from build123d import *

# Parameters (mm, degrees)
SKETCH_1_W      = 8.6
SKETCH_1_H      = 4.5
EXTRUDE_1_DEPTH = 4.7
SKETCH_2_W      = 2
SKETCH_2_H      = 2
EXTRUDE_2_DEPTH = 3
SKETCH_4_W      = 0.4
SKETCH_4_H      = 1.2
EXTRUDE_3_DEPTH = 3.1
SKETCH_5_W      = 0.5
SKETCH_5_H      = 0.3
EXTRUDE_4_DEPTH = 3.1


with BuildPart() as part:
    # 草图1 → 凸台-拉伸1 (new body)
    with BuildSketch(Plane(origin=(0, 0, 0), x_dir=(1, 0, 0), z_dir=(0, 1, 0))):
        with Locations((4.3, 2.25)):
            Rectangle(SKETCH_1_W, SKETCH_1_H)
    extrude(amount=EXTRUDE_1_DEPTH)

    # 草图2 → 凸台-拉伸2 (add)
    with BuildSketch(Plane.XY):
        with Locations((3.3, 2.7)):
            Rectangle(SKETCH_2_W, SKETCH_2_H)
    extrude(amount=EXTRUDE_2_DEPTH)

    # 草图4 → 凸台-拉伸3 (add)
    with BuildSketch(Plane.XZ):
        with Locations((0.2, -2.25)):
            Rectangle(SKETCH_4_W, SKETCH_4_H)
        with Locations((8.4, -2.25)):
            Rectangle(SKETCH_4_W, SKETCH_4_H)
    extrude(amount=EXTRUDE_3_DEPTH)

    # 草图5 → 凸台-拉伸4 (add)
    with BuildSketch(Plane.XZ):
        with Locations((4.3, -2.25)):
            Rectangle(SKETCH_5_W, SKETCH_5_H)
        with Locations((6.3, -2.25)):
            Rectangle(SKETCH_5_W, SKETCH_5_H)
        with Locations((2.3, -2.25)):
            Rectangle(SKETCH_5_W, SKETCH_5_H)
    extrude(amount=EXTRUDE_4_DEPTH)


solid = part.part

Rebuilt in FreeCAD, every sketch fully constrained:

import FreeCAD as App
import Part
import Sketcher
from FreeCAD import Vector

doc = App.newDocument("Part")
params = doc.addObject("Spreadsheet::Sheet", "Params")
for row, (alias, value) in enumerate([
    ("sketch1_width", "8.6 mm"),
    ("sketch1_height", "4.5 mm"),
    ("pad1_length", "4.7 mm"),
    ("sketch2_width", "2 mm"),
    ("pad2_length", "3 mm"),
    ("sketch3_width", "0.4 mm"),
    ("sketch3_height", "1.2 mm"),
    ("pad3_length", "3.1 mm"),
    ("sketch4_width", "0.5 mm"),
    ("sketch4_height", "0.3 mm"),
    ("pad4_length", "3.1 mm"),
], start=1):
    params.set(f"A{row}", alias)
    params.set(f"B{row}", "=" + value)
    params.setAlias(f"B{row}", alias)

body = doc.addObject("PartDesign::Body", "Body")

sketch1 = body.newObject("Sketcher::SketchObject", "Sketch")
sketch1.AttachmentSupport = (doc.getObject("XZ_Plane"), [""])
sketch1.MapMode = "FlatFace"
sketch1.addGeometry(Part.LineSegment(Vector(0, -4.5, 0), Vector(0, 0, 0)), False)
sketch1.addGeometry(Part.LineSegment(Vector(0, 0, 0), Vector(8.6, 0, 0)), False)
sketch1.addGeometry(Part.LineSegment(Vector(8.6, 0, 0), Vector(8.6, -4.5, 0)), False)
sketch1.addGeometry(Part.LineSegment(Vector(8.6, -4.5, 0), Vector(0, -4.5, 0)), False)
sketch1.addConstraint(Sketcher.Constraint("Coincident", 0, 2, 1, 1))
sketch1.addConstraint(Sketcher.Constraint("Coincident", 1, 2, 2, 1))
sketch1.addConstraint(Sketcher.Constraint("Coincident", 2, 2, 3, 1))
sketch1.addConstraint(Sketcher.Constraint("Coincident", 3, 2, 0, 1))
sketch1.addConstraint(Sketcher.Constraint("Vertical", 0))
sketch1.addConstraint(Sketcher.Constraint("Horizontal", 1))
sketch1.addConstraint(Sketcher.Constraint("Vertical", 2))
sketch1.addConstraint(Sketcher.Constraint("Horizontal", 3))
sketch1.addConstraint(Sketcher.Constraint("Coincident", 0, 2, -1, 1))
sketch1.addConstraint(Sketcher.Constraint("DistanceX", 1, 1, 1, 2, 8.6))
sketch1.addConstraint(Sketcher.Constraint("DistanceY", 0, 1, 0, 2, 4.5))
sketch1.setExpression("Constraints[9]", "Params.sketch1_width")
sketch1.setExpression("Constraints[10]", "Params.sketch1_height")
pad1 = body.newObject("PartDesign::Pad", "Pad")
pad1.Profile = sketch1
pad1.setExpression("Length", "Params.pad1_length")
pad1.Reversed = True

sketch2 = body.newObject("Sketcher::SketchObject", "Sketch001")
sketch2.AttachmentSupport = (doc.getObject("XY_Plane"), [""])
sketch2.MapMode = "FlatFace"
sketch2.addGeometry(Part.LineSegment(Vector(2.3, 3.7, 0), Vector(2.3, 1.7, 0)), False)
sketch2.addGeometry(Part.LineSegment(Vector(2.3, 1.7, 0), Vector(4.3, 1.7, 0)), False)
sketch2.addGeometry(Part.LineSegment(Vector(4.3, 1.7, 0), Vector(4.3, 3.7, 0)), False)
sketch2.addGeometry(Part.LineSegment(Vector(4.3, 3.7, 0), Vector(2.3, 3.7, 0)), False)
sketch2.addConstraint(Sketcher.Constraint("Coincident", 0, 2, 1, 1))
sketch2.addConstraint(Sketcher.Constraint("Coincident", 1, 2, 2, 1))
sketch2.addConstraint(Sketcher.Constraint("Coincident", 2, 2, 3, 1))
sketch2.addConstraint(Sketcher.Constraint("Coincident", 3, 2, 0, 1))
sketch2.addConstraint(Sketcher.Constraint("Vertical", 0))
sketch2.addConstraint(Sketcher.Constraint("Horizontal", 1))
sketch2.addConstraint(Sketcher.Constraint("Vertical", 2))
sketch2.addConstraint(Sketcher.Constraint("Horizontal", 3))
sketch2.addConstraint(Sketcher.Constraint("Equal", 3, 0))
sketch2.addConstraint(Sketcher.Constraint("DistanceX", 1, 1, 1, 2, 2.0))
sketch2.addConstraint(Sketcher.Constraint("DistanceX", -1, 1, 0, 2, 2.3))
sketch2.addConstraint(Sketcher.Constraint("DistanceY", -1, 1, 0, 2, 1.7))
sketch2.setExpression("Constraints[9]", "Params.sketch2_width")
pad2 = body.newObject("PartDesign::Pad", "Pad001")
pad2.Profile = sketch2
pad2.setExpression("Length", "Params.pad2_length")

sketch3 = body.newObject("Sketcher::SketchObject", "Sketch002")
sketch3.AttachmentSupport = (doc.getObject("XZ_Plane"), [""])
sketch3.MapMode = "FlatFace"
sketch3.addGeometry(Part.LineSegment(Vector(0, -1.65, 0), Vector(0, -2.85, 0)), False)
sketch3.addGeometry(Part.LineSegment(Vector(0, -2.85, 0), Vector(0.4, -2.85, 0)), False)
sketch3.addGeometry(Part.LineSegment(Vector(0.4, -2.85, 0), Vector(0.4, -1.65, 0)), False)
sketch3.addGeometry(Part.LineSegment(Vector(0.4, -1.65, 0), Vector(0, -1.65, 0)), False)
sketch3.addGeometry(Part.LineSegment(Vector(8.2, -1.65, 0), Vector(8.2, -2.85, 0)), False)
sketch3.addGeometry(Part.LineSegment(Vector(8.2, -2.85, 0), Vector(8.6, -2.85, 0)), False)
sketch3.addGeometry(Part.LineSegment(Vector(8.6, -2.85, 0), Vector(8.6, -1.65, 0)), False)
sketch3.addGeometry(Part.LineSegment(Vector(8.6, -1.65, 0), Vector(8.2, -1.65, 0)), False)
sketch3.addConstraint(Sketcher.Constraint("Coincident", 0, 2, 1, 1))
sketch3.addConstraint(Sketcher.Constraint("Coincident", 1, 2, 2, 1))
sketch3.addConstraint(Sketcher.Constraint("Coincident", 2, 2, 3, 1))
sketch3.addConstraint(Sketcher.Constraint("Coincident", 3, 2, 0, 1))
sketch3.addConstraint(Sketcher.Constraint("Coincident", 4, 2, 5, 1))
sketch3.addConstraint(Sketcher.Constraint("Coincident", 5, 2, 6, 1))
sketch3.addConstraint(Sketcher.Constraint("Coincident", 6, 2, 7, 1))
sketch3.addConstraint(Sketcher.Constraint("Coincident", 7, 2, 4, 1))
sketch3.addConstraint(Sketcher.Constraint("Vertical", 0))
sketch3.addConstraint(Sketcher.Constraint("Horizontal", 1))
sketch3.addConstraint(Sketcher.Constraint("Vertical", 2))
sketch3.addConstraint(Sketcher.Constraint("Horizontal", 3))
sketch3.addConstraint(Sketcher.Constraint("Vertical", 4))
sketch3.addConstraint(Sketcher.Constraint("Horizontal", 5))
sketch3.addConstraint(Sketcher.Constraint("Vertical", 6))
sketch3.addConstraint(Sketcher.Constraint("Horizontal", 7))
sketch3.addConstraint(Sketcher.Constraint("PointOnObject", 0, 2, -2))
sketch3.addConstraint(Sketcher.Constraint("Horizontal", 1, 2, 4, 2))
sketch3.addConstraint(Sketcher.Constraint("Horizontal", 3, 2, 6, 2))
sketch3.addConstraint(Sketcher.Constraint("Equal", 3, 5))
sketch3.addConstraint(Sketcher.Constraint("DistanceX", 1, 1, 1, 2, 0.4))
sketch3.addConstraint(Sketcher.Constraint("DistanceY", 0, 2, 0, 1, 1.2))
sketch3.addConstraint(Sketcher.Constraint("DistanceX", -1, 1, 4, 2, 8.2))
sketch3.addConstraint(Sketcher.Constraint("DistanceY", 0, 2, -1, 1, 2.85))
sketch3.setExpression("Constraints[20]", "Params.sketch3_width")
sketch3.setExpression("Constraints[21]", "Params.sketch3_height")
pad3 = body.newObject("PartDesign::Pad", "Pad002")
pad3.Profile = sketch3
pad3.setExpression("Length", "Params.pad3_length")

sketch4 = body.newObject("Sketcher::SketchObject", "Sketch003")
sketch4.AttachmentSupport = (doc.getObject("XZ_Plane"), [""])
sketch4.MapMode = "FlatFace"
sketch4.addGeometry(Part.LineSegment(Vector(4.05, -2.1, 0), Vector(4.05, -2.4, 0)), False)
sketch4.addGeometry(Part.LineSegment(Vector(4.05, -2.4, 0), Vector(4.55, -2.4, 0)), False)
sketch4.addGeometry(Part.LineSegment(Vector(4.55, -2.4, 0), Vector(4.55, -2.1, 0)), False)
sketch4.addGeometry(Part.LineSegment(Vector(4.55, -2.1, 0), Vector(4.05, -2.1, 0)), False)
sketch4.addGeometry(Part.LineSegment(Vector(6.05, -2.1, 0), Vector(6.05, -2.4, 0)), False)
sketch4.addGeometry(Part.LineSegment(Vector(6.05, -2.4, 0), Vector(6.55, -2.4, 0)), False)
sketch4.addGeometry(Part.LineSegment(Vector(6.55, -2.4, 0), Vector(6.55, -2.1, 0)), False)
sketch4.addGeometry(Part.LineSegment(Vector(6.55, -2.1, 0), Vector(6.05, -2.1, 0)), False)
sketch4.addGeometry(Part.LineSegment(Vector(2.05, -2.1, 0), Vector(2.05, -2.4, 0)), False)
sketch4.addGeometry(Part.LineSegment(Vector(2.05, -2.4, 0), Vector(2.55, -2.4, 0)), False)
sketch4.addGeometry(Part.LineSegment(Vector(2.55, -2.4, 0), Vector(2.55, -2.1, 0)), False)
sketch4.addGeometry(Part.LineSegment(Vector(2.55, -2.1, 0), Vector(2.05, -2.1, 0)), False)
sketch4.addConstraint(Sketcher.Constraint("Coincident", 0, 2, 1, 1))
sketch4.addConstraint(Sketcher.Constraint("Coincident", 1, 2, 2, 1))
sketch4.addConstraint(Sketcher.Constraint("Coincident", 2, 2, 3, 1))
sketch4.addConstraint(Sketcher.Constraint("Coincident", 3, 2, 0, 1))
sketch4.addConstraint(Sketcher.Constraint("Coincident", 4, 2, 5, 1))
sketch4.addConstraint(Sketcher.Constraint("Coincident", 5, 2, 6, 1))
sketch4.addConstraint(Sketcher.Constraint("Coincident", 6, 2, 7, 1))
sketch4.addConstraint(Sketcher.Constraint("Coincident", 7, 2, 4, 1))
sketch4.addConstraint(Sketcher.Constraint("Coincident", 8, 2, 9, 1))
sketch4.addConstraint(Sketcher.Constraint("Coincident", 9, 2, 10, 1))
sketch4.addConstraint(Sketcher.Constraint("Coincident", 10, 2, 11, 1))
sketch4.addConstraint(Sketcher.Constraint("Coincident", 11, 2, 8, 1))
sketch4.addConstraint(Sketcher.Constraint("Vertical", 0))
sketch4.addConstraint(Sketcher.Constraint("Horizontal", 1))
sketch4.addConstraint(Sketcher.Constraint("Vertical", 2))
sketch4.addConstraint(Sketcher.Constraint("Horizontal", 3))
sketch4.addConstraint(Sketcher.Constraint("Vertical", 4))
sketch4.addConstraint(Sketcher.Constraint("Horizontal", 5))
sketch4.addConstraint(Sketcher.Constraint("Vertical", 6))
sketch4.addConstraint(Sketcher.Constraint("Horizontal", 7))
sketch4.addConstraint(Sketcher.Constraint("Vertical", 8))
sketch4.addConstraint(Sketcher.Constraint("Horizontal", 9))
sketch4.addConstraint(Sketcher.Constraint("Vertical", 10))
sketch4.addConstraint(Sketcher.Constraint("Horizontal", 11))
sketch4.addConstraint(Sketcher.Constraint("Horizontal", 1, 2, 4, 2))
sketch4.addConstraint(Sketcher.Constraint("Horizontal", 3, 2, 6, 2))
sketch4.addConstraint(Sketcher.Constraint("Horizontal", 5, 2, 8, 2))
sketch4.addConstraint(Sketcher.Constraint("Horizontal", 7, 2, 10, 2))
sketch4.addConstraint(Sketcher.Constraint("Equal", 3, 5))
sketch4.addConstraint(Sketcher.Constraint("Equal", 7, 9))
sketch4.addConstraint(Sketcher.Constraint("DistanceX", 1, 1, 1, 2, 0.5))
sketch4.addConstraint(Sketcher.Constraint("DistanceY", 0, 2, 0, 1, 0.3))
sketch4.addConstraint(Sketcher.Constraint("DistanceX", 0, 2, 4, 2, 2.0))
sketch4.addConstraint(Sketcher.Constraint("DistanceX", 8, 2, 0, 2, 2.0))
sketch4.addConstraint(Sketcher.Constraint("DistanceY", 0, 2, -1, 1, 2.4))
sketch4.addConstraint(Sketcher.Constraint("DistanceX", -1, 1, 0, 2, 4.05))
sketch4.setExpression("Constraints[30]", "Params.sketch4_width")
sketch4.setExpression("Constraints[31]", "Params.sketch4_height")
pad4 = body.newObject("PartDesign::Pad", "Pad003")
pad4.Profile = sketch4
pad4.setExpression("Length", "Params.pad4_length")

doc.recompute()
